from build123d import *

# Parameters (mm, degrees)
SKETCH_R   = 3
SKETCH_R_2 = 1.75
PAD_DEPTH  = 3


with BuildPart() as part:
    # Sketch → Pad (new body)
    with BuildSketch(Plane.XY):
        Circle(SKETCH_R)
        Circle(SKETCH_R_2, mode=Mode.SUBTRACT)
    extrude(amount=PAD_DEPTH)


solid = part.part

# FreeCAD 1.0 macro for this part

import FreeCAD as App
import Part
import Sketcher

doc = App.newDocument("Part")
params = doc.addObject("Spreadsheet::Sheet", "Params")
for row, (alias, value) in enumerate([
    ("sketch1_diameter", "6 mm"),
    ("sketch1_diameter2", "3.5 mm"),
    ("pad1_length", "3 mm"),
], start=1):
    params.set(f"A{row}", alias)
    params.set(f"B{row}", "=" + value)
    params.setAlias(f"B{row}", alias)

body = doc.addObject("PartDesign::Body", "Body")

sketch1 = body.newObject("Sketcher::SketchObject", "Sketch")
sketch1.AttachmentSupport = (doc.getObject("XY_Plane"), [""])
sketch1.MapMode = "FlatFace"
sketch1.addGeometry([
    Part.Circle(App.Vector(0, 0, 0), App.Vector(0, 0, 1), 3),
    Part.Circle(App.Vector(0, 0, 0), App.Vector(0, 0, 1), 1.8),
], False)
sketch1.addConstraint([
    Sketcher.Constraint("Coincident", 0, 3, -1, 1),
    Sketcher.Constraint("Coincident", 1, 3, -1, 1),
    Sketcher.Constraint("Diameter", 0, 6.0),
    Sketcher.Constraint("Diameter", 1, 3.5),
])
sketch1.setExpression("Constraints[2]", "Params.sketch1_diameter")
sketch1.setExpression("Constraints[3]", "Params.sketch1_diameter2")
pad1 = body.newObject("PartDesign::Pad", "Pad")
pad1.Profile = sketch1
pad1.setExpression("Length", "Params.pad1_length")

doc.recompute()
